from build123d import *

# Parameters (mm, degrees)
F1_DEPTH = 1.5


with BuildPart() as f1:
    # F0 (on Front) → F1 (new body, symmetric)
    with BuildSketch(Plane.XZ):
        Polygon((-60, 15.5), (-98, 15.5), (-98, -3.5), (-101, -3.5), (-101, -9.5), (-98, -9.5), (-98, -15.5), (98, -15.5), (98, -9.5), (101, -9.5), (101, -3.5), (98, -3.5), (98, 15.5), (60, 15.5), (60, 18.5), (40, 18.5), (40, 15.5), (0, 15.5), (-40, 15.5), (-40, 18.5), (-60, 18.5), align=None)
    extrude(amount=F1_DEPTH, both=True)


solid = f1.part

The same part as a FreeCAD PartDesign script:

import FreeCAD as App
import Part
import Sketcher

V = App.Vector

doc = App.newDocument("Part")
body = doc.addObject("PartDesign::Body", "Body")

sketch1 = doc.addObject("Sketcher::SketchObject", "Sketch")
body.addObject(sketch1)
sketch1.AttachmentSupport = (doc.XZ_Plane, [""])
sketch1.MapMode = "FlatFace"
sketch1.addGeometry(Part.LineSegment(V(-60, 15.5, 0), V(-98, 15.5, 0)), False)
sketch1.addGeometry(Part.LineSegment(V(-98, 15.5, 0), V(-98, -3.5, 0)), False)
sketch1.addGeometry(Part.LineSegment(V(-98, -3.5, 0), V(-101, -3.5, 0)), False)
sketch1.addGeometry(Part.LineSegment(V(-101, -3.5, 0), V(-101, -9.5, 0)), False)
sketch1.addGeometry(Part.LineSegment(V(-101, -9.5, 0), V(-98, -9.5, 0)), False)
sketch1.addGeometry(Part.LineSegment(V(-98, -9.5, 0), V(-98, -15.5, 0)), False)
sketch1.addGeometry(Part.LineSegment(V(-98, -15.5, 0), V(98, -15.5, 0)), False)
sketch1.addGeometry(Part.LineSegment(V(98, -15.5, 0), V(98, -9.5, 0)), False)
sketch1.addGeometry(Part.LineSegment(V(98, -9.5, 0), V(101, -9.5, 0)), False)
sketch1.addGeometry(Part.LineSegment(V(101, -9.5, 0), V(101, -3.5, 0)), False)
sketch1.addGeometry(Part.LineSegment(V(101, -3.5, 0), V(98, -3.5, 0)), False)
sketch1.addGeometry(Part.LineSegment(V(98, -3.5, 0), V(98, 15.5, 0)), False)
sketch1.addGeometry(Part.LineSegment(V(98, 15.5, 0), V(60, 15.5, 0)), False)
sketch1.addGeometry(Part.LineSegment(V(60, 15.5, 0), V(60, 18.5, 0)), False)
sketch1.addGeometry(Part.LineSegment(V(60, 18.5, 0), V(40, 18.5, 0)), False)
sketch1.addGeometry(Part.LineSegment(V(40, 18.5, 0), V(40, 15.5, 0)), False)
sketch1.addGeometry(Part.LineSegment(V(40, 15.5, 0), V(-40, 15.5, 0)), False)
sketch1.addGeometry(Part.LineSegment(V(-40, 15.5, 0), V(-40, 18.5, 0)), False)
sketch1.addGeometry(Part.LineSegment(V(-40, 18.5, 0), V(-60, 18.5, 0)), False)
sketch1.addGeometry(Part.LineSegment(V(-60, 18.5, 0), V(-60, 15.5, 0)), False)
sketch1.addConstraint(Sketcher.Constraint("Coincident", 0, 2, 1, 1))
sketch1.addConstraint(Sketcher.Constraint("Coincident", 1, 2, 2, 1))
sketch1.addConstraint(Sketcher.Constraint("Coincident", 2, 2, 3, 1))
sketch1.addConstraint(Sketcher.Constraint("Coincident", 3, 2, 4, 1))
sketch1.addConstraint(Sketcher.Constraint("Coincident", 4, 2, 5, 1))
sketch1.addConstraint(Sketcher.Constraint("Coincident", 5, 2, 6, 1))
sketch1.addConstraint(Sketcher.Constraint("Coincident", 6, 2, 7, 1))
sketch1.addConstraint(Sketcher.Constraint("Coincident", 7, 2, 8, 1))
sketch1.addConstraint(Sketcher.Constraint("Coincident", 8, 2, 9, 1))
sketch1.addConstraint(Sketcher.Constraint("Coincident", 9, 2, 10, 1))
sketch1.addConstraint(Sketcher.Constraint("Coincident", 10, 2, 11, 1))
sketch1.addConstraint(Sketcher.Constraint("Coincident", 11, 2, 12, 1))
sketch1.addConstraint(Sketcher.Constraint("Coincident", 12, 2, 13, 1))
sketch1.addConstraint(Sketcher.Constraint("Coincident", 13, 2, 14, 1))
sketch1.addConstraint(Sketcher.Constraint("Coincident", 14, 2, 15, 1))
sketch1.addConstraint(Sketcher.Constraint("Coincident", 15, 2, 16, 1))
sketch1.addConstraint(Sketcher.Constraint("Coincident", 16, 2, 17, 1))
sketch1.addConstraint(Sketcher.Constraint("Coincident", 17, 2, 18, 1))
sketch1.addConstraint(Sketcher.Constraint("Coincident", 18, 2, 19, 1))
sketch1.addConstraint(Sketcher.Constraint("Coincident", 19, 2, 0, 1))
sketch1.addConstraint(Sketcher.Constraint("Horizontal", 0))
sketch1.addConstraint(Sketcher.Constraint("Vertical", 1))
sketch1.addConstraint(Sketcher.Constraint("Horizontal", 2))
sketch1.addConstraint(Sketcher.Constraint("Vertical", 3))
sketch1.addConstraint(Sketcher.Constraint("Horizontal", 4))
sketch1.addConstraint(Sketcher.Constraint("Vertical", 5))
sketch1.addConstraint(Sketcher.Constraint("Horizontal", 6))
sketch1.addConstraint(Sketcher.Constraint("Vertical", 7))
sketch1.addConstraint(Sketcher.Constraint("Horizontal", 8))
sketch1.addConstraint(Sketcher.Constraint("Vertical", 9))
sketch1.addConstraint(Sketcher.Constraint("Horizontal", 10))
sketch1.addConstraint(Sketcher.Constraint("Vertical", 11))
sketch1.addConstraint(Sketcher.Constraint("Horizontal", 12))
sketch1.addConstraint(Sketcher.Constraint("Vertical", 13))
sketch1.addConstraint(Sketcher.Constraint("Horizontal", 14))
sketch1.addConstraint(Sketcher.Constraint("Vertical", 15))
sketch1.addConstraint(Sketcher.Constraint("Horizontal", 16))
sketch1.addConstraint(Sketcher.Constraint("Vertical", 17))
sketch1.addConstraint(Sketcher.Constraint("Horizontal", 18))
sketch1.addConstraint(Sketcher.Constraint("Vertical", 19))
sketch1.addConstraint(Sketcher.Constraint("Symmetric", 0, 2, 6, 2, -1, 1))
sketch1.addConstraint(Sketcher.Constraint("Symmetric", 5, 2, 11, 2, -1, 1))
sketch1.addConstraint(Sketcher.Constraint("Symmetric", 4, 2, 7, 2, -2))
sketch1.addConstraint(Sketcher.Constraint("Symmetric", 2, 2, 9, 2, -2))
sketch1.addConstraint(Sketcher.Constraint("Symmetric", 14, 2, 17, 2, -2))
sketch1.addConstraint(Sketcher.Constraint("Horizontal", 12, 2, 15, 2))
sketch1.addConstraint(Sketcher.Constraint("Equal", 0, 12))
sketch1.addConstraint(Sketcher.Constraint("Equal", 3, 5))
sketch1.addConstraint(Sketcher.Constraint("Equal", 10, 13))
sketch1.addConstraint(Sketcher.Constraint("DistanceX", 0, 2, 0, 1, 38.0))
sketch1.addConstraint(Sketcher.Constraint("DistanceX", 2, 2, 2, 1, 3.0))
sketch1.addConstraint(Sketcher.Constraint("DistanceX", 6, 1, 6, 2, 196.0))
sketch1.addConstraint(Sketcher.Constraint("DistanceX", 14, 2, 14, 1, 20.0))
sketch1.addConstraint(Sketcher.Constraint("DistanceY", 1, 2, 1, 1, 19.0))
sketch1.addConstraint(Sketcher.Constraint("DistanceY", 3, 2, 3, 1, 6.0))
pad1 = doc.addObject("PartDesign::Pad", "Pad")
body.addObject(pad1)
pad1.Profile = sketch1
pad1.Length = 3
pad1.Midplane = True

doc.recompute()
